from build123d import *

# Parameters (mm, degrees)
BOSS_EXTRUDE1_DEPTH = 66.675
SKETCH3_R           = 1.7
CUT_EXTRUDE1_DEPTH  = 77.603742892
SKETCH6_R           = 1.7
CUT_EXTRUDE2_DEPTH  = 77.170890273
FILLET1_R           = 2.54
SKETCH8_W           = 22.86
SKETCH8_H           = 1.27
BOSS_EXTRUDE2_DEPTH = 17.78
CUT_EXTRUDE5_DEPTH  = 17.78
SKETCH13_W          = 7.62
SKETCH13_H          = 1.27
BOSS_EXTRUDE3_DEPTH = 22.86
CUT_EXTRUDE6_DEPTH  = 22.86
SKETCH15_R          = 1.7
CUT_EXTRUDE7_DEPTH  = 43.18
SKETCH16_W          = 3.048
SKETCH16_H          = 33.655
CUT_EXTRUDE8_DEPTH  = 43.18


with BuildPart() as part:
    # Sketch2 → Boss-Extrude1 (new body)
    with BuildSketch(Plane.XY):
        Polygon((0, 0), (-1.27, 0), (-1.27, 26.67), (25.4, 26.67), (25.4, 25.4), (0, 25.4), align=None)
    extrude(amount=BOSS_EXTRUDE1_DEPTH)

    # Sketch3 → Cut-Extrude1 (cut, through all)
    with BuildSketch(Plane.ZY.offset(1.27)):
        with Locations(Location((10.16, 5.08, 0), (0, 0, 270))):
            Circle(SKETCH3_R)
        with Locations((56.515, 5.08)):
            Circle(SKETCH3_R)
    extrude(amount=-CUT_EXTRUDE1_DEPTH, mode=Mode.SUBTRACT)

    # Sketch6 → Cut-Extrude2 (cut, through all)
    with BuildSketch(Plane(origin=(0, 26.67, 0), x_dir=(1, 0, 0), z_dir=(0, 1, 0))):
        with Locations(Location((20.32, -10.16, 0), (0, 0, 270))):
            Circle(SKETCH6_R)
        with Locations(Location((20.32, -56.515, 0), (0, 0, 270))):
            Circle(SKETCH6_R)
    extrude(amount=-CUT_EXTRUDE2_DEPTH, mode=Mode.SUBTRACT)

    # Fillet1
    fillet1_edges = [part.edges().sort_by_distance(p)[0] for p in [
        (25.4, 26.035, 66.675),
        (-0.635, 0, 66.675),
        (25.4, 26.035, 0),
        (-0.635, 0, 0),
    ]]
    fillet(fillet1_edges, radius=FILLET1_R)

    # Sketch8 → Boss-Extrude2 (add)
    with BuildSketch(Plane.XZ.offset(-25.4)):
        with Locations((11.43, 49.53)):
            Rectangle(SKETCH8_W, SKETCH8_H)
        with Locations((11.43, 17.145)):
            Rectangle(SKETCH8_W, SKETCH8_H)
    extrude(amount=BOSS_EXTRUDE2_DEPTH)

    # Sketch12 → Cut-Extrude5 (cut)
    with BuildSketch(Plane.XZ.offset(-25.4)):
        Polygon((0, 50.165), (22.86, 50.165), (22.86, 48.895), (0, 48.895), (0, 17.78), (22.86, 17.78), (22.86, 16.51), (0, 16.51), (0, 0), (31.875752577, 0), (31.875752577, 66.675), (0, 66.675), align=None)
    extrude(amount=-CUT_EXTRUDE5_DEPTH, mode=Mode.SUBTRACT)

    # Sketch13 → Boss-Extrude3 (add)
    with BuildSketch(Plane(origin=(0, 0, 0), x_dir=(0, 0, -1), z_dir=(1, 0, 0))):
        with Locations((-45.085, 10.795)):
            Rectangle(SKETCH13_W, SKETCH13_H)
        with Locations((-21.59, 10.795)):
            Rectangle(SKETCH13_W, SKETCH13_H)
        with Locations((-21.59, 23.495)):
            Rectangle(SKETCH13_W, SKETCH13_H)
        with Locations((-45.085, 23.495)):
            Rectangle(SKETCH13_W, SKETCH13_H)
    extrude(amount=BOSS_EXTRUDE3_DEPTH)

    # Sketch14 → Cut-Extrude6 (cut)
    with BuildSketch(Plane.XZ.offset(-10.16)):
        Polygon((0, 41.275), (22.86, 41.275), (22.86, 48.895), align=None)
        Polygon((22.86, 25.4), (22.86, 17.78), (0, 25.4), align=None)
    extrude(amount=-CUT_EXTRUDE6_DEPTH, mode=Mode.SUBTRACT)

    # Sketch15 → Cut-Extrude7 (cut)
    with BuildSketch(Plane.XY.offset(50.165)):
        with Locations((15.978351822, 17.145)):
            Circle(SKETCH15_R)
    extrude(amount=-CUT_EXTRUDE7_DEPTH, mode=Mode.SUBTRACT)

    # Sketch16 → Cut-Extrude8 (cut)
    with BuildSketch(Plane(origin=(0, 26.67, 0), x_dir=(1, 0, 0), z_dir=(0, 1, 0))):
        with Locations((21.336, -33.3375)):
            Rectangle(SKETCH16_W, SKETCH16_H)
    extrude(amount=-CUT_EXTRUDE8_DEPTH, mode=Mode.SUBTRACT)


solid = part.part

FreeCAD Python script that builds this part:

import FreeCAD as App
import Part
import Sketcher
from FreeCAD import Vector
Q = App.Units.Quantity


def edges_at(feature, points):
    """Names of the edges that pass closest to the given points."""
    edges = feature.Shape.Edges
    near = lambda p: min(range(len(edges)), key=lambda i: edges[i].distToShape(Part.Vertex(*p))[0])
    return sorted({f"Edge{near(p) + 1}" for p in points})

doc = App.newDocument("Part")
body = doc.addObject("PartDesign::Body", "Body")

sketch1 = body.newObject("Sketcher::SketchObject", "Sketch")
sketch1.AttachmentSupport = (doc.getObject("XY_Plane"), [""])
sketch1.MapMode = "FlatFace"
sketch1.addGeometry(Part.LineSegment(Vector(-1.3, 0, 0), Vector(0, 0, 0)), False)
sketch1.addGeometry(Part.LineSegment(Vector(0, 0, 0), Vector(0, 25.4, 0)), False)
sketch1.addGeometry(Part.LineSegment(Vector(0, 25.4, 0), Vector(25.4, 25.4, 0)), False)
sketch1.addGeometry(Part.LineSegment(Vector(25.4, 25.4, 0), Vector(25.4, 26.7, 0)), False)
sketch1.addGeometry(Part.LineSegment(Vector(25.4, 26.7, 0), Vector(-1.3, 26.7, 0)), False)
sketch1.addGeometry(Part.LineSegment(Vector(-1.3, 26.7, 0), Vector(-1.3, 0, 0)), False)
sketch1.addConstraint(Sketcher.Constraint("Coincident", 0, 2, 1, 1))
sketch1.addConstraint(Sketcher.Constraint("Coincident", 1, 2, 2, 1))
sketch1.addConstraint(Sketcher.Constraint("Coincident", 2, 2, 3, 1))
sketch1.addConstraint(Sketcher.Constraint("Coincident", 3, 2, 4, 1))
sketch1.addConstraint(Sketcher.Constraint("Coincident", 4, 2, 5, 1))
sketch1.addConstraint(Sketcher.Constraint("Coincident", 5, 2, 0, 1))
sketch1.addConstraint(Sketcher.Constraint("Horizontal", 0))
sketch1.addConstraint(Sketcher.Constraint("Vertical", 1))
sketch1.addConstraint(Sketcher.Constraint("Horizontal", 2))
sketch1.addConstraint(Sketcher.Constraint("Vertical", 3))
sketch1.addConstraint(Sketcher.Constraint("Horizontal", 4))
sketch1.addConstraint(Sketcher.Constraint("Vertical", 5))
sketch1.addConstraint(Sketcher.Constraint("Coincident", 0, 2, -1, 1))
sketch1.addConstraint(Sketcher.Constraint("Equal", 2, 1))
sketch1.addConstraint(Sketcher.Constraint("Equal", 0, 3))
sketch1.addConstraint(Sketcher.Constraint("DistanceX", 2, 1, 2, 2, Q("1 in")))
sketch1.addConstraint(Sketcher.Constraint("DistanceX", 0, 1, 0, 2, Q("0.05 in")))
pad1 = body.newObject("PartDesign::Pad", "Pad")
pad1.Profile = sketch1
pad1.Length = Q("2.625 in")

sketch2 = body.newObject("Sketcher::SketchObject", "Sketch001")
sketch2.AttachmentSupport = (doc.getObject("YZ_Plane"), [""])
sketch2.MapMode = "FlatFace"
sketch2.AttachmentOffset = App.Placement(Vector(0, 0, -0.05 * 25.4), App.Rotation())
sketch2.addGeometry(Part.Circle(Vector(5.1, 10.2, 0), Vector(0, 0, 1), 1.7), False)
sketch2.addGeometry(Part.Circle(Vector(5.1, 56.5, 0), Vector(0, 0, 1), 1.7), False)
sketch2.addConstraint(Sketcher.Constraint("Equal", 0, 1))
sketch2.addConstraint(Sketcher.Constraint("Vertical", 0, 3, 1, 3))
sketch2.addConstraint(Sketcher.Constraint("DistanceX", -1, 1, 0, 3, Q("0.2 in")))
sketch2.addConstraint(Sketcher.Constraint("DistanceY", -1, 1, 0, 3, Q("0.4 in")))
sketch2.addConstraint(Sketcher.Constraint("Diameter", 0, Q("3.4 mm")))
sketch2.addConstraint(Sketcher.Constraint("DistanceY", -1, 1, 1, 3, Q("2.225 in")))
pocket1 = body.newObject("PartDesign::Pocket", "Pocket")
pocket1.Profile = sketch2
pocket1.Type = "ThroughAll"
pocket1.Reversed = True

sketch3 = body.newObject("Sketcher::SketchObject", "Sketch002")
sketch3.AttachmentSupport = (doc.getObject("XZ_Plane"), [""])
sketch3.MapMode = "FlatFace"
sketch3.AttachmentOffset = App.Placement(Vector(0, 0, -1.05 * 25.4), App.Rotation())
sketch3.addGeometry(Part.Circle(Vector(20.3, 10.2, 0), Vector(0, 0, 1), 1.7), False)
sketch3.addGeometry(Part.Circle(Vector(20.3, 56.5, 0), Vector(0, 0, 1), 1.7), False)
sketch3.addConstraint(Sketcher.Constraint("Equal", 0, 1))
sketch3.addConstraint(Sketcher.Constraint("Vertical", 0, 3, 1, 3))
sketch3.addConstraint(Sketcher.Constraint("DistanceX", -1, 1, 0, 3, Q("0.8 in")))
sketch3.addConstraint(Sketcher.Constraint("DistanceY", -1, 1, 0, 3, Q("0.4 in")))
sketch3.addConstraint(Sketcher.Constraint("Diameter", 0, Q("3.4 mm")))
sketch3.addConstraint(Sketcher.Constraint("DistanceY", -1, 1, 1, 3, Q("2.225 in")))
pocket2 = body.newObject("PartDesign::Pocket", "Pocket001")
pocket2.Profile = sketch3
pocket2.Type = "ThroughAll"
pocket2.Reversed = True
doc.recompute()

fillet = body.newObject("PartDesign::Fillet", "Fillet")
fillet.Base = (pocket2, edges_at(pocket2, [
    (25.4, 26.035, 66.675),
    (-0.635, 0, 66.675),
    (25.4, 26.035, 0),
    (-0.635, 0, 0),
]))
fillet.Radius = Q("0.1 in")

sketch4 = body.newObject("Sketcher::SketchObject", "Sketch003")
sketch4.AttachmentSupport = (doc.getObject("XZ_Plane"), [""])
sketch4.MapMode = "FlatFace"
sketch4.AttachmentOffset = App.Placement(Vector(0, 0, -1 * 25.4), App.Rotation())
sketch4.addGeometry(Part.LineSegment(Vector(0, 50.2, 0), Vector(0, 48.9, 0)), False)
sketch4.addGeometry(Part.LineSegment(Vector(0, 48.9, 0), Vector(22.9, 48.9, 0)), False)
sketch4.addGeometry(Part.LineSegment(Vector(22.9, 48.9, 0), Vector(22.9, 50.2, 0)), False)
sketch4.addGeometry(Part.LineSegment(Vector(22.9, 50.2, 0), Vector(0, 50.2, 0)), False)
sketch4.addGeometry(Part.LineSegment(Vector(0, 17.8, 0), Vector(0, 16.5, 0)), False)
sketch4.addGeometry(Part.LineSegment(Vector(0, 16.5, 0), Vector(22.9, 16.5, 0)), False)
sketch4.addGeometry(Part.LineSegment(Vector(22.9, 16.5, 0), Vector(22.9, 17.8, 0)), False)
sketch4.addGeometry(Part.LineSegment(Vector(22.9, 17.8, 0), Vector(0, 17.8, 0)), False)
sketch4.addConstraint(Sketcher.Constraint("Coincident", 0, 2, 1, 1))
sketch4.addConstraint(Sketcher.Constraint("Coincident", 1, 2, 2, 1))
sketch4.addConstraint(Sketcher.Constraint("Coincident", 2, 2, 3, 1))
sketch4.addConstraint(Sketcher.Constraint("Coincident", 3, 2, 0, 1))
sketch4.addConstraint(Sketcher.Constraint("Coincident", 4, 2, 5, 1))
sketch4.addConstraint(Sketcher.Constraint("Coincident", 5, 2, 6, 1))
sketch4.addConstraint(Sketcher.Constraint("Coincident", 6, 2, 7, 1))
sketch4.addConstraint(Sketcher.Constraint("Coincident", 7, 2, 4, 1))
sketch4.addConstraint(Sketcher.Constraint("Vertical", 0))
sketch4.addConstraint(Sketcher.Constraint("Horizontal", 1))
sketch4.addConstraint(Sketcher.Constraint("Vertical", 2))
sketch4.addConstraint(Sketcher.Constraint("Horizontal", 3))
sketch4.addConstraint(Sketcher.Constraint("Vertical", 4))
sketch4.addConstraint(Sketcher.Constraint("Horizontal", 5))
sketch4.addConstraint(Sketcher.Constraint("Vertical", 6))
sketch4.addConstraint(Sketcher.Constraint("Horizontal", 7))
sketch4.addConstraint(Sketcher.Constraint("PointOnObject", 0, 2, -2))
sketch4.addConstraint(Sketcher.Constraint("PointOnObject", 4, 2, -2))
sketch4.addConstraint(Sketcher.Constraint("Vertical", 2, 2, 5, 2))
sketch4.addConstraint(Sketcher.Constraint("Equal", 2, 4))
sketch4.addConstraint(Sketcher.Constraint("DistanceX", 1, 1, 1, 2, Q("0.9 in")))
sketch4.addConstraint(Sketcher.Constraint("DistanceY", 0, 2, 0, 1, Q("0.05 in")))
sketch4.addConstraint(Sketcher.Constraint("DistanceY", -1, 1, 6, 2, Q("0.7 in")))
sketch4.addConstraint(Sketcher.Constraint("DistanceY", -1, 1, 0, 2, Q("1.925 in")))
pad2 = body.newObject("PartDesign::Pad", "Pad001")
pad2.Profile = sketch4
pad2.Length = Q("0.7 in")

sketch5 = body.newObject("Sketcher::SketchObject", "Sketch004")
sketch5.AttachmentSupport = (doc.getObject("XZ_Plane"), [""])
sketch5.MapMode = "FlatFace"
sketch5.AttachmentOffset = App.Placement(Vector(0, 0, -1 * 25.4), App.Rotation())
sketch5.addGeometry(Part.LineSegment(Vector(0, 50.2, 0), Vector(22.9, 50.2, 0)), False)
sketch5.addGeometry(Part.LineSegment(Vector(22.9, 50.2, 0), Vector(22.9, 48.9, 0)), False)
sketch5.addGeometry(Part.LineSegment(Vector(22.9, 48.9, 0), Vector(0, 48.9, 0)), False)
sketch5.addGeometry(Part.LineSegment(Vector(0, 48.9, 0), Vector(0, 17.8, 0)), False)
sketch5.addGeometry(Part.LineSegment(Vector(0, 17.8, 0), Vector(22.9, 17.8, 0)), False)
sketch5.addGeometry(Part.LineSegment(Vector(22.9, 17.8, 0), Vector(22.9, 16.5, 0)), False)
sketch5.addGeometry(Part.LineSegment(Vector(22.9, 16.5, 0), Vector(0, 16.5, 0)), False)
sketch5.addGeometry(Part.LineSegment(Vector(0, 16.5, 0), Vector(0, 0, 0)), False)
sketch5.addGeometry(Part.LineSegment(Vector(0, 0, 0), Vector(31.9, 0, 0)), False)
sketch5.addGeometry(Part.LineSegment(Vector(31.9, 0, 0), Vector(31.9, 66.7, 0)), False)
sketch5.addGeometry(Part.LineSegment(Vector(31.9, 66.7, 0), Vector(0, 66.7, 0)), False)
sketch5.addGeometry(Part.LineSegment(Vector(0, 66.7, 0), Vector(0, 50.2, 0)), False)
sketch5.addConstraint(Sketcher.Constraint("Coincident", 0, 2, 1, 1))
sketch5.addConstraint(Sketcher.Constraint("Coincident", 1, 2, 2, 1))
sketch5.addConstraint(Sketcher.Constraint("Coincident", 2, 2, 3, 1))
sketch5.addConstraint(Sketcher.Constraint("Coincident", 3, 2, 4, 1))
sketch5.addConstraint(Sketcher.Constraint("Coincident", 4, 2, 5, 1))
sketch5.addConstraint(Sketcher.Constraint("Coincident", 5, 2, 6, 1))
sketch5.addConstraint(Sketcher.Constraint("Coincident", 6, 2, 7, 1))
sketch5.addConstraint(Sketcher.Constraint("Coincident", 7, 2, 8, 1))
sketch5.addConstraint(Sketcher.Constraint("Coincident", 8, 2, 9, 1))
sketch5.addConstraint(Sketcher.Constraint("Coincident", 9, 2, 10, 1))
sketch5.addConstraint(Sketcher.Constraint("Coincident", 10, 2, 11, 1))
sketch5.addConstraint(Sketcher.Constraint("Coincident", 11, 2, 0, 1))
sketch5.addConstraint(Sketcher.Constraint("Horizontal", 0))
sketch5.addConstraint(Sketcher.Constraint("Vertical", 1))
sketch5.addConstraint(Sketcher.Constraint("Horizontal", 2))
sketch5.addConstraint(Sketcher.Constraint("Vertical", 3))
sketch5.addConstraint(Sketcher.Constraint("Horizontal", 4))
sketch5.addConstraint(Sketcher.Constraint("Vertical", 5))
sketch5.addConstraint(Sketcher.Constraint("Horizontal", 6))
sketch5.addConstraint(Sketcher.Constraint("Vertical", 7))
sketch5.addConstraint(Sketcher.Constraint("Horizontal", 8))
sketch5.addConstraint(Sketcher.Constraint("Vertical", 9))
sketch5.addConstraint(Sketcher.Constraint("Horizontal", 10))
sketch5.addConstraint(Sketcher.Constraint("Vertical", 11))
sketch5.addConstraint(Sketcher.Constraint("Coincident", 7, 2, -1, 1))
sketch5.addConstraint(Sketcher.Constraint("PointOnObject", 2, 2, -2))
sketch5.addConstraint(Sketcher.Constraint("PointOnObject", 10, 2, -2))
sketch5.addConstraint(Sketcher.Constraint("Vertical", 1, 2, 4, 2))
sketch5.addConstraint(Sketcher.Constraint("Equal", 1, 5))
sketch5.addConstraint(Sketcher.Constraint("Equal", 7, 11))
sketch5.addConstraint(Sketcher.Constraint("DistanceX", 0, 1, 0, 2, Q("0.9 in")))
sketch5.addConstraint(Sketcher.Constraint("DistanceY", 1, 2, 1, 1, Q("0.05 in")))
sketch5.addConstraint(Sketcher.Constraint("DistanceY", 7, 2, 7, 1, Q("0.65 in")))
sketch5.addConstraint(Sketcher.Constraint("DistanceY", 3, 2, 3, 1, Q("1.225 in")))
sketch5.addConstraint(Sketcher.Constraint("DistanceX", 8, 1, 8, 2, Q("31.875753 mm")))
pocket3 = body.newObject("PartDesign::Pocket", "Pocket002")
pocket3.Profile = sketch5
pocket3.Length = Q("0.7 in")

sketch6 = body.newObject("Sketcher::SketchObject", "Sketch005")
sketch6.AttachmentSupport = (doc.getObject("YZ_Plane"), [""])
sketch6.MapMode = "FlatFace"
sketch6.addGeometry(Part.LineSegment(Vector(11.4, 48.9, 0), Vector(10.2, 48.9, 0)), False)
sketch6.addGeometry(Part.LineSegment(Vector(10.2, 48.9, 0), Vector(10.2, 41.3, 0)), False)
sketch6.addGeometry(Part.LineSegment(Vector(10.2, 41.3, 0), Vector(11.4, 41.3, 0)), False)
sketch6.addGeometry(Part.LineSegment(Vector(11.4, 41.3, 0), Vector(11.4, 48.9, 0)), False)
sketch6.addGeometry(Part.LineSegment(Vector(11.4, 25.4, 0), Vector(10.2, 25.4, 0)), False)
sketch6.addGeometry(Part.LineSegment(Vector(10.2, 25.4, 0), Vector(10.2, 17.8, 0)), False)
sketch6.addGeometry(Part.LineSegment(Vector(10.2, 17.8, 0), Vector(11.4, 17.8, 0)), False)
sketch6.addGeometry(Part.LineSegment(Vector(11.4, 17.8, 0), Vector(11.4, 25.4, 0)), False)
sketch6.addGeometry(Part.LineSegment(Vector(24.1, 25.4, 0), Vector(22.9, 25.4, 0)), False)
sketch6.addGeometry(Part.LineSegment(Vector(22.9, 25.4, 0), Vector(22.9, 17.8, 0)), False)
sketch6.addGeometry(Part.LineSegment(Vector(22.9, 17.8, 0), Vector(24.1, 17.8, 0)), False)
sketch6.addGeometry(Part.LineSegment(Vector(24.1, 17.8, 0), Vector(24.1, 25.4, 0)), False)
sketch6.addGeometry(Part.LineSegment(Vector(24.1, 48.9, 0), Vector(22.9, 48.9, 0)), False)
sketch6.addGeometry(Part.LineSegment(Vector(22.9, 48.9, 0), Vector(22.9, 41.3, 0)), False)
sketch6.addGeometry(Part.LineSegment(Vector(22.9, 41.3, 0), Vector(24.1, 41.3, 0)), False)
sketch6.addGeometry(Part.LineSegment(Vector(24.1, 41.3, 0), Vector(24.1, 48.9, 0)), False)
sketch6.addConstraint(Sketcher.Constraint("Coincident", 0, 2, 1, 1))
sketch6.addConstraint(Sketcher.Constraint("Coincident", 1, 2, 2, 1))
sketch6.addConstraint(Sketcher.Constraint("Coincident", 2, 2, 3, 1))
sketch6.addConstraint(Sketcher.Constraint("Coincident", 3, 2, 0, 1))
sketch6.addConstraint(Sketcher.Constraint("Coincident", 4, 2, 5, 1))
sketch6.addConstraint(Sketcher.Constraint("Coincident", 5, 2, 6, 1))
sketch6.addConstraint(Sketcher.Constraint("Coincident", 6, 2, 7, 1))
sketch6.addConstraint(Sketcher.Constraint("Coincident", 7, 2, 4, 1))
sketch6.addConstraint(Sketcher.Constraint("Coincident", 8, 2, 9, 1))
sketch6.addConstraint(Sketcher.Constraint("Coincident", 9, 2, 10, 1))
sketch6.addConstraint(Sketcher.Constraint("Coincident", 10, 2, 11, 1))
sketch6.addConstraint(Sketcher.Constraint("Coincident", 11, 2, 8, 1))
sketch6.addConstraint(Sketcher.Constraint("Coincident", 12, 2, 13, 1))
sketch6.addConstraint(Sketcher.Constraint("Coincident", 13, 2, 14, 1))
sketch6.addConstraint(Sketcher.Constraint("Coincident", 14, 2, 15, 1))
sketch6.addConstraint(Sketcher.Constraint("Coincident", 15, 2, 12, 1))
sketch6.addConstraint(Sketcher.Constraint("Horizontal", 0))
sketch6.addConstraint(Sketcher.Constraint("Vertical", 1))
sketch6.addConstraint(Sketcher.Constraint("Horizontal", 2))
sketch6.addConstraint(Sketcher.Constraint("Vertical", 3))
sketch6.addConstraint(Sketcher.Constraint("Horizontal", 4))
sketch6.addConstraint(Sketcher.Constraint("Vertical", 5))
sketch6.addConstraint(Sketcher.Constraint("Horizontal", 6))
sketch6.addConstraint(Sketcher.Constraint("Vertical", 7))
sketch6.addConstraint(Sketcher.Constraint("Horizontal", 8))
sketch6.addConstraint(Sketcher.Constraint("Vertical", 9))
sketch6.addConstraint(Sketcher.Constraint("Horizontal", 10))
sketch6.addConstraint(Sketcher.Constraint("Vertical", 11))
sketch6.addConstraint(Sketcher.Constraint("Horizontal", 12))
sketch6.addConstraint(Sketcher.Constraint("Vertical", 13))
sketch6.addConstraint(Sketcher.Constraint("Horizontal", 14))
sketch6.addConstraint(Sketcher.Constraint("Vertical", 15))
sketch6.addConstraint(Sketcher.Constraint("Horizontal", 7, 2, 8, 2))
sketch6.addConstraint(Sketcher.Constraint("Horizontal", 6, 2, 9, 2))
sketch6.addConstraint(Sketcher.Constraint("Horizontal", 3, 2, 12, 2))
sketch6.addConstraint(Sketcher.Constraint("Horizontal", 2, 2, 13, 2))
sketch6.addConstraint(Sketcher.Constraint("Vertical", 1, 2, 4, 2))
sketch6.addConstraint(Sketcher.Constraint("Vertical", 3, 2, 6, 2))
sketch6.addConstraint(Sketcher.Constraint("Vertical", 9, 2, 12, 2))
sketch6.addConstraint(Sketcher.Constraint("Vertical", 11, 2, 14, 2))
sketch6.addConstraint(Sketcher.Constraint("Equal", 6, 8))
sketch6.addConstraint(Sketcher.Constraint("Equal", 3, 5))
sketch6.addConstraint(Sketcher.Constraint("DistanceY", 1, 2, 1, 1, Q("0.3 in")))
sketch6.addConstraint(Sketcher.Constraint("DistanceY", -1, 1, 4, 2, Q("1 in")))
sketch6.addConstraint(Sketcher.Constraint("DistanceX", 0, 2, 0, 1, Q("0.05 in")))
sketch6.addConstraint(Sketcher.Constraint("DistanceX", -1, 1, 0, 2, Q("0.4 in")))
sketch6.addConstraint(Sketcher.Constraint("DistanceX", -1, 1, 8, 2, Q("0.9 in")))
sketch6.addConstraint(Sketcher.Constraint("DistanceY", -1, 1, 0, 2, Q("1.925 in")))
pad3 = body.newObject("PartDesign::Pad", "Pad002")
pad3.Profile = sketch6
pad3.Length = Q("0.9 in")

sketch7 = body.newObject("Sketcher::SketchObject", "Sketch006")
sketch7.AttachmentSupport = (doc.getObject("XZ_Plane"), [""])
sketch7.MapMode = "FlatFace"
sketch7.AttachmentOffset = App.Placement(Vector(0, 0, -0.4 * 25.4), App.Rotation())
sketch7.addGeometry(Part.LineSegment(Vector(0, 41, 0), Vector(23, 41, 0)), False)
sketch7.addGeometry(Part.LineSegment(Vector(23, 41, 0), Vector(23, 49, 0)), False)
sketch7.addGeometry(Part.LineSegment(Vector(23, 49, 0), Vector(0, 41, 0)), False)
sketch7.addGeometry(Part.LineSegment(Vector(23, 18, 0), Vector(23, 25, 0)), False)
sketch7.addGeometry(Part.LineSegment(Vector(23, 25, 0), Vector(0, 25, 0)), False)
sketch7.addGeometry(Part.LineSegment(Vector(0, 25, 0), Vector(23, 18, 0)), False)
sketch7.addConstraint(Sketcher.Constraint("Coincident", 0, 2, 1, 1))
sketch7.addConstraint(Sketcher.Constraint("Coincident", 1, 2, 2, 1))
sketch7.addConstraint(Sketcher.Constraint("Coincident", 2, 2, 0, 1))
sketch7.addConstraint(Sketcher.Constraint("Coincident", 3, 2, 4, 1))
sketch7.addConstraint(Sketcher.Constraint("Coincident", 4, 2, 5, 1))
sketch7.addConstraint(Sketcher.Constraint("Coincident", 5, 2, 3, 1))
sketch7.addConstraint(Sketcher.Constraint("Horizontal", 0))
sketch7.addConstraint(Sketcher.Constraint("Vertical", 1))
sketch7.addConstraint(Sketcher.Constraint("Vertical", 3))
sketch7.addConstraint(Sketcher.Constraint("Horizontal", 4))
sketch7.addConstraint(Sketcher.Constraint("PointOnObject", 2, 2, -2))
sketch7.addConstraint(Sketcher.Constraint("PointOnObject", 4, 2, -2))
sketch7.addConstraint(Sketcher.Constraint("Vertical", 1, 2, 3, 2))
sketch7.addConstraint(Sketcher.Constraint("Equal", 1, 3))
sketch7.addConstraint(Sketcher.Constraint("DistanceX", 0, 1, 0, 2, Q("0.9 in")))
sketch7.addConstraint(Sketcher.Constraint("DistanceY", 1, 1, 1, 2, Q("0.3 in")))
sketch7.addConstraint(Sketcher.Constraint("DistanceY", -1, 1, 3, 2, Q("1 in")))
sketch7.addConstraint(Sketcher.Constraint("DistanceY", -1, 1, 0, 2, Q("1.625 in")))
pocket4 = body.newObject("PartDesign::Pocket", "Pocket003")
pocket4.Profile = sketch7
pocket4.Length = Q("0.9 in")

sketch8 = body.newObject("Sketcher::SketchObject", "Sketch007")
sketch8.AttachmentSupport = (doc.getObject("XY_Plane"), [""])
sketch8.MapMode = "FlatFace"
sketch8.AttachmentOffset = App.Placement(Vector(0, 0, 1.975 * 25.4), App.Rotation())
sketch8.addGeometry(Part.Circle(Vector(16, 17.1, 0), Vector(0, 0, 1), 1.7), False)
sketch8.addConstraint(Sketcher.Constraint("Diameter", 0, Q("3.4 mm")))
sketch8.addConstraint(Sketcher.Constraint("DistanceY", -1, 1, 0, 3, Q("0.675 in")))
sketch8.addConstraint(Sketcher.Constraint("DistanceX", -1, 1, 0, 3, Q("15.978352 mm")))
pocket5 = body.newObject("PartDesign::Pocket", "Pocket004")
pocket5.Profile = sketch8
pocket5.Length = Q("1.7 in")

sketch9 = body.newObject("Sketcher::SketchObject", "Sketch008")
sketch9.AttachmentSupport = (doc.getObject("XZ_Plane"), [""])
sketch9.MapMode = "FlatFace"
sketch9.AttachmentOffset = App.Placement(Vector(0, 0, -1.05 * 25.4), App.Rotation())
sketch9.addGeometry(Part.LineSegment(Vector(19.8, 16.5, 0), Vector(19.8, 50.2, 0)), False)
sketch9.addGeometry(Part.LineSegment(Vector(19.8, 50.2, 0), Vector(22.9, 50.2, 0)), False)
sketch9.addGeometry(Part.LineSegment(Vector(22.9, 50.2, 0), Vector(22.9, 16.5, 0)), False)
sketch9.addGeometry(Part.LineSegment(Vector(22.9, 16.5, 0), Vector(19.8, 16.5, 0)), False)
sketch9.addConstraint(Sketcher.Constraint("Coincident", 0, 2, 1, 1))
sketch9.addConstraint(Sketcher.Constraint("Coincident", 1, 2, 2, 1))
sketch9.addConstraint(Sketcher.Constraint("Coincident", 2, 2, 3, 1))
sketch9.addConstraint(Sketcher.Constraint("Coincident", 3, 2, 0, 1))
sketch9.addConstraint(Sketcher.Constraint("Vertical", 0))
sketch9.addConstraint(Sketcher.Constraint("Horizontal", 1))
sketch9.addConstraint(Sketcher.Constraint("Vertical", 2))
sketch9.addConstraint(Sketcher.Constraint("Horizontal", 3))
sketch9.addConstraint(Sketcher.Constraint("DistanceX", 1, 1, 1, 2, Q("0.12 in")))
sketch9.addConstraint(Sketcher.Constraint("DistanceX", -1, 1, 1, 2, Q("0.9 in")))
sketch9.addConstraint(Sketcher.Constraint("DistanceY", 0, 1, 0, 2, Q("1.325 in")))
sketch9.addConstraint(Sketcher.Constraint("DistanceY", -1, 1, 2, 2, Q("0.65 in")))
pocket6 = body.newObject("PartDesign::Pocket", "Pocket005")
pocket6.Profile = sketch9
pocket6.Length = Q("1.7 in")
pocket6.Reversed = True

doc.recompute()
